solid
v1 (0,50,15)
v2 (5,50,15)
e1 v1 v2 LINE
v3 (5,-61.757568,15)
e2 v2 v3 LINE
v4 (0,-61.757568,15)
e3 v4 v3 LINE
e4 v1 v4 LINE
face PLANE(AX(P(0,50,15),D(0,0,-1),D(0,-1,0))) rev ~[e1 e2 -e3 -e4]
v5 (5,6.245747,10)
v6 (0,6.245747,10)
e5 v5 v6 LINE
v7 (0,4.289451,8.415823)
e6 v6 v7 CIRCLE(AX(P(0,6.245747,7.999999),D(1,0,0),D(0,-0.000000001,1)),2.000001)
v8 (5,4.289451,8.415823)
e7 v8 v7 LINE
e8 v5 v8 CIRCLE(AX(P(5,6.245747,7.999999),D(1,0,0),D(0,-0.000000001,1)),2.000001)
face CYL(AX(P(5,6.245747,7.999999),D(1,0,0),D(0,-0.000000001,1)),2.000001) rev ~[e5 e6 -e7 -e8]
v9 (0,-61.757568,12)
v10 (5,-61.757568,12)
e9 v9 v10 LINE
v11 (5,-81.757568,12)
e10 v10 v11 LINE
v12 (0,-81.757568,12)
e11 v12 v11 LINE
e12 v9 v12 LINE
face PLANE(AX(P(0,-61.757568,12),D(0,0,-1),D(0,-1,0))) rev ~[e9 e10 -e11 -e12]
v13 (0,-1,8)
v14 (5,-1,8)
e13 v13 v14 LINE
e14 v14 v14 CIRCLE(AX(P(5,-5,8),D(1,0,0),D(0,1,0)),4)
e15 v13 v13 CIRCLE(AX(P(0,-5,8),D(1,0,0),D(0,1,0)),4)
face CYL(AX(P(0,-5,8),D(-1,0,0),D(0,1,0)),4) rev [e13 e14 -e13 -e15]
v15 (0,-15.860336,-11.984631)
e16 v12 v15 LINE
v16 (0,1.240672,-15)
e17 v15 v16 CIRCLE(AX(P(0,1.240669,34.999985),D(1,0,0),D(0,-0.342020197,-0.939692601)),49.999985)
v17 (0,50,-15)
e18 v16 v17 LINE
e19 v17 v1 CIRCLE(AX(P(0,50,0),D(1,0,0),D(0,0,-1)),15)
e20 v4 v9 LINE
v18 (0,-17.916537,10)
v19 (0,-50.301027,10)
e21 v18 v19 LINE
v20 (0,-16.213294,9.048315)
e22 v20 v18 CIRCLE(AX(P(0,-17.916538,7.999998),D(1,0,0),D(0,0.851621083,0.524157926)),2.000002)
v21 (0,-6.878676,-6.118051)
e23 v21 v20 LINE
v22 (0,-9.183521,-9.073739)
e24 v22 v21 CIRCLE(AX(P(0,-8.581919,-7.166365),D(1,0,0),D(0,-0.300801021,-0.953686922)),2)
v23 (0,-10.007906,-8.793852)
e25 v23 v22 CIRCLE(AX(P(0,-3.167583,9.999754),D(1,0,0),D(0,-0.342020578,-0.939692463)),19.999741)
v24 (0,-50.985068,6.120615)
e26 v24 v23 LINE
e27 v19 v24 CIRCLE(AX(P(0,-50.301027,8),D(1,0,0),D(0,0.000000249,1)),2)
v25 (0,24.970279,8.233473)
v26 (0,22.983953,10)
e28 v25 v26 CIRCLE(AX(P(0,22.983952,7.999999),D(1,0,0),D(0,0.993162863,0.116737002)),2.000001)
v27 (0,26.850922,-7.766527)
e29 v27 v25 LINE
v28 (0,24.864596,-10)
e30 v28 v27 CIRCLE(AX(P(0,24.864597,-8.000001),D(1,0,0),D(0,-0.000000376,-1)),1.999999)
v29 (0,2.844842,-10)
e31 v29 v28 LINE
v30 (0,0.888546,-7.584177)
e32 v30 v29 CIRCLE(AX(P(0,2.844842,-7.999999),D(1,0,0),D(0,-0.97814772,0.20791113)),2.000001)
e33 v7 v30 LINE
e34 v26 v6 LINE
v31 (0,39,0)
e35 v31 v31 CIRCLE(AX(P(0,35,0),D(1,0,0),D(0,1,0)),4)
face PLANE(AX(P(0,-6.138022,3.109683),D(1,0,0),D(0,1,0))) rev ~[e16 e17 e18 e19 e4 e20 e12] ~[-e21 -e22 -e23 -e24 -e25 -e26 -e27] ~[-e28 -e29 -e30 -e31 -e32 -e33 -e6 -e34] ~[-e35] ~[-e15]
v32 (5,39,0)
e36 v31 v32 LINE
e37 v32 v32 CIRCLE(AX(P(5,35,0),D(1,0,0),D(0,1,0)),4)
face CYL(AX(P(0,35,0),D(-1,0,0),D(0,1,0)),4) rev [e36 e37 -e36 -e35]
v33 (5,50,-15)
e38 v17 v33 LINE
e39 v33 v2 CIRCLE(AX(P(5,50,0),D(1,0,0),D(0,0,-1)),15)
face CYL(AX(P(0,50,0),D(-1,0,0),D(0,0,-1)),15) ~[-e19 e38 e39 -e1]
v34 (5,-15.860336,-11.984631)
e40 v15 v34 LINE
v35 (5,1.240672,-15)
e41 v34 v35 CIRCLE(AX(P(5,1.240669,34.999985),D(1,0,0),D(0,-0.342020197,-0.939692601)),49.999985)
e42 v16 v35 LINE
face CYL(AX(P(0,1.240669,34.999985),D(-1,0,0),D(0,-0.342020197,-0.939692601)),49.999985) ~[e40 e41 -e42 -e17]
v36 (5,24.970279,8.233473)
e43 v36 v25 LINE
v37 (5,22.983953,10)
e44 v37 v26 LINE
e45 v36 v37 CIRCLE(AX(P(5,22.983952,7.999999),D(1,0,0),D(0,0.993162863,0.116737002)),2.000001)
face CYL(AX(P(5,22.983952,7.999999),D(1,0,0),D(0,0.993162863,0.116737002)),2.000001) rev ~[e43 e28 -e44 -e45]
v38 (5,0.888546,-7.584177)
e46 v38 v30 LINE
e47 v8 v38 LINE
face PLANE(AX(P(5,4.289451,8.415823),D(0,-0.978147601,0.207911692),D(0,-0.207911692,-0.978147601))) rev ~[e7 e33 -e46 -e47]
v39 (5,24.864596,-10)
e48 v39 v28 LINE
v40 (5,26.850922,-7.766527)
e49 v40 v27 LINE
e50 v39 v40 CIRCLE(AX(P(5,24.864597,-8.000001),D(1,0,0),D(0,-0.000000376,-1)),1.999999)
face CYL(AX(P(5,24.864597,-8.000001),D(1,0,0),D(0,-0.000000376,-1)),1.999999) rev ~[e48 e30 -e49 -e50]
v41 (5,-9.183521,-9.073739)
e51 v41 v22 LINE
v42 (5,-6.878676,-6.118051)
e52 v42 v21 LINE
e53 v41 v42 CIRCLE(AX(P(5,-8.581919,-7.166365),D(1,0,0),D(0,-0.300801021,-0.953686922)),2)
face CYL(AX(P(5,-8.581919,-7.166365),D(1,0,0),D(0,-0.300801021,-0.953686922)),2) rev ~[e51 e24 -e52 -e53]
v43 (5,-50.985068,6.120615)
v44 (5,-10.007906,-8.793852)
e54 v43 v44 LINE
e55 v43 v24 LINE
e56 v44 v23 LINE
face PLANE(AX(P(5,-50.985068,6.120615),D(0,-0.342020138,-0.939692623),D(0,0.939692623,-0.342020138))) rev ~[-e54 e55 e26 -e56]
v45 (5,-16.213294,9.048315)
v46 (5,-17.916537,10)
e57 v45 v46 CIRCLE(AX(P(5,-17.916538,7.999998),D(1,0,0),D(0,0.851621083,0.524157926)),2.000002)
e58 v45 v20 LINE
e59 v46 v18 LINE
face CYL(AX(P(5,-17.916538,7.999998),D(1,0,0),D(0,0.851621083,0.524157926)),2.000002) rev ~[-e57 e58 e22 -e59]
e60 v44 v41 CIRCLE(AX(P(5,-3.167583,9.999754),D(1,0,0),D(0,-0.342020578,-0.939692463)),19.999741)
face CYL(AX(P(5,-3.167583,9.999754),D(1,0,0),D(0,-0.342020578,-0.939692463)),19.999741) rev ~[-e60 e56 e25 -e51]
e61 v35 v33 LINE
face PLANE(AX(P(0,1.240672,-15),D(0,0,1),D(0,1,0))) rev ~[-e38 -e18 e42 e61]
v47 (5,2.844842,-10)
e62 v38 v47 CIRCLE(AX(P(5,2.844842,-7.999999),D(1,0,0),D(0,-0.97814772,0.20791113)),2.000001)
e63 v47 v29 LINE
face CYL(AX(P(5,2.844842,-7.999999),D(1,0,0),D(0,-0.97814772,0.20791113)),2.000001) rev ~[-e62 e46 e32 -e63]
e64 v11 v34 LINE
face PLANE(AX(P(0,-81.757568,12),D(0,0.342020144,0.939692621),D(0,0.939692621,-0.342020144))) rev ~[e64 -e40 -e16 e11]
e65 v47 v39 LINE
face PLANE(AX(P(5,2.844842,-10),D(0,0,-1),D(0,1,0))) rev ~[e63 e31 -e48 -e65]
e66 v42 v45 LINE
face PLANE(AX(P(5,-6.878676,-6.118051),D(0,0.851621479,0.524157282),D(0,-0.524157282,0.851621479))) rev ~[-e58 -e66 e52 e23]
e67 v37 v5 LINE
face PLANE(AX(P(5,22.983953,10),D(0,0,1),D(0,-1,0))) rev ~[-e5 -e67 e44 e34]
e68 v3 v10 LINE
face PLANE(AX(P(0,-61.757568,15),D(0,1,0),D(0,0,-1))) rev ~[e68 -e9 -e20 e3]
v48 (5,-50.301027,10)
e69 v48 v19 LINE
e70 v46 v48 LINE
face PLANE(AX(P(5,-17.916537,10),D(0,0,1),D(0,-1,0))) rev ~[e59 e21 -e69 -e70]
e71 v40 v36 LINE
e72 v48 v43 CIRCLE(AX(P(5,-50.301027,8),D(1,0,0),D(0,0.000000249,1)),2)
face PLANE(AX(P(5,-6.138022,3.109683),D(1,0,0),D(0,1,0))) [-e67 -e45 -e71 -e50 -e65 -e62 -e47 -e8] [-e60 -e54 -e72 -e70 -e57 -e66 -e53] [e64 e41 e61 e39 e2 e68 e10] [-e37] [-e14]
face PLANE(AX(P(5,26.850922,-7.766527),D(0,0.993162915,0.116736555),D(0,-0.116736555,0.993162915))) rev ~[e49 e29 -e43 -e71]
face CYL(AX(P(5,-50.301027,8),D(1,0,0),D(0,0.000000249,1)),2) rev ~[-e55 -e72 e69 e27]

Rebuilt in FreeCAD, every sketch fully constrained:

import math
import FreeCAD as App
import Part
import Sketcher
from FreeCAD import Vector
Q = App.Units.Quantity

doc = App.newDocument("Part")
body = doc.addObject("PartDesign::Body", "Body")

# Sketch on YZ plane
sketch1 = body.newObject("Sketcher::SketchObject", "Sketch")
sketch1.AttachmentSupport = (doc.getObject("YZ_Plane"), [""])
sketch1.MapMode = "FlatFace"
sketch1.addGeometry(Part.LineSegment(Vector(50, 15, 0), Vector(-61.8, 15, 0)), False)
sketch1.addGeometry(Part.LineSegment(Vector(-61.8, 15, 0), Vector(-61.8, 12, 0)), False)
sketch1.addGeometry(Part.LineSegment(Vector(-61.8, 12, 0), Vector(-81.8, 12, 0)), False)
sketch1.addGeometry(Part.LineSegment(Vector(-81.8, 12, 0), Vector(-15.9, -12, 0)), False)
sketch1.addGeometry(Part.ArcOfCircle(Part.Circle(Vector(1.2, 35, 0), Vector(0, 0, 1), 50), math.radians(-110), math.radians(-90)), False)
sketch1.addGeometry(Part.LineSegment(Vector(1.2, -15, 0), Vector(50, -15, 0)), False)
sketch1.addGeometry(Part.ArcOfCircle(Part.Circle(Vector(50, 0, 0), Vector(0, 0, 1), 15), math.radians(-90), math.radians(90)), False)
sketch1.addGeometry(Part.Circle(Vector(35, 0, 0), Vector(0, 0, 1), 4), False)
sketch1.addGeometry(Part.Circle(Vector(-5, 8, 0), Vector(0, 0, 1), 4), False)
sketch1.addConstraint(Sketcher.Constraint("Coincident", 0, 2, 1, 1))
sketch1.addConstraint(Sketcher.Constraint("Coincident", 1, 2, 2, 1))
sketch1.addConstraint(Sketcher.Constraint("Coincident", 2, 2, 3, 1))
sketch1.addConstraint(Sketcher.Constraint("Tangent", 3, 2, 4, 1))
sketch1.addConstraint(Sketcher.Constraint("Tangent", 4, 2, 5, 1))
sketch1.addConstraint(Sketcher.Constraint("Tangent", 5, 2, 6, 1))
sketch1.addConstraint(Sketcher.Constraint("Tangent", 6, 2, 0, 1))
sketch1.addConstraint(Sketcher.Constraint("Horizontal", 0))
sketch1.addConstraint(Sketcher.Constraint("Vertical", 1))
sketch1.addConstraint(Sketcher.Constraint("Horizontal", 2))
sketch1.addConstraint(Sketcher.Constraint("Horizontal", 5))
sketch1.addConstraint(Sketcher.Constraint("Equal", 7, 8))
sketch1.addConstraint(Sketcher.Constraint("PointOnObject", 6, 3, -1))
sketch1.addConstraint(Sketcher.Constraint("PointOnObject", 7, 3, -1))
sketch1.addConstraint(Sketcher.Constraint("Diameter", 7, Q("8 mm")))
sketch1.addConstraint(Sketcher.Constraint("Radius", 6, Q("15 mm")))
sketch1.addConstraint(Sketcher.Constraint("DistanceX", 2, 2, 2, 1, Q("20 mm")))
sketch1.addConstraint(Sketcher.Constraint("DistanceY", 1, 2, 1, 1, Q("3 mm")))
sketch1.addConstraint(Sketcher.Constraint("Angle", 3, Q("-20 deg")))
sketch1.addConstraint(Sketcher.Constraint("DistanceX", -1, 1, 6, 3, Q("50 mm")))
sketch1.addConstraint(Sketcher.Constraint("DistanceX", -1, 1, 7, 3, Q("35 mm")))
sketch1.addConstraint(Sketcher.Constraint("DistanceX", 8, 3, -1, 1, Q("5 mm")))
sketch1.addConstraint(Sketcher.Constraint("DistanceY", -1, 1, 8, 3, Q("8 mm")))
sketch1.addConstraint(Sketcher.Constraint("Radius", 4, Q("49.999985 mm")))
sketch1.addConstraint(Sketcher.Constraint("DistanceX", 0, 2, 0, 1, Q("111.757568 mm")))
pad1 = body.newObject("PartDesign::Pad", "Pad")
pad1.Profile = sketch1
pad1.Length = 5

# Sketch on YZ plane
sketch2 = body.newObject("Sketcher::SketchObject", "Sketch001")
sketch2.AttachmentSupport = (doc.getObject("YZ_Plane"), [""])
sketch2.MapMode = "FlatFace"
sketch2.AttachmentOffset = App.Placement(Vector(0, 0, 5), App.Rotation())
sketch2.addGeometry(Part.LineSegment(Vector(-17.9, 10, 0), Vector(-50.3, 10, 0)), False)
sketch2.addGeometry(Part.ArcOfCircle(Part.Circle(Vector(-50.3, 8, 0), Vector(0, 0, 1), 2), math.radians(90), math.radians(250)), False)
sketch2.addGeometry(Part.LineSegment(Vector(-51, 6.1, 0), Vector(-10, -8.8, 0)), False)
sketch2.addGeometry(Part.ArcOfCircle(Part.Circle(Vector(-3.2, 10, 0), Vector(0, 0, 1), 20), math.radians(-110), math.radians(-107.51)), False)
sketch2.addGeometry(Part.ArcOfCircle(Part.Circle(Vector(-8.6, -7.2, 0), Vector(0, 0, 1), 2), math.radians(-108), math.radians(32)), False)
sketch2.addGeometry(Part.LineSegment(Vector(-6.9, -6.1, 0), Vector(-16.2, 9, 0)), False)
sketch2.addGeometry(Part.ArcOfCircle(Part.Circle(Vector(-17.9, 8, 0), Vector(0, 0, 1), 2), math.radians(32), math.radians(90)), False)
sketch2.addGeometry(Part.LineSegment(Vector(23, 10, 0), Vector(6.2, 10, 0)), False)
sketch2.addGeometry(Part.ArcOfCircle(Part.Circle(Vector(6.2, 8, 0), Vector(0, 0, 1), 2), math.radians(90), math.radians(168)), False)
sketch2.addGeometry(Part.LineSegment(Vector(4.3, 8.4, 0), Vector(0.9, -7.6, 0)), False)
sketch2.addGeometry(Part.ArcOfCircle(Part.Circle(Vector(2.8, -8, 0), Vector(0, 0, 1), 2), math.radians(168), math.radians(270)), False)
sketch2.addGeometry(Part.LineSegment(Vector(2.8, -10, 0), Vector(24.9, -10, 0)), False)
sketch2.addGeometry(Part.ArcOfCircle(Part.Circle(Vector(24.9, -8, 0), Vector(0, 0, 1), 2), math.radians(-90), math.radians(7)), False)
sketch2.addGeometry(Part.LineSegment(Vector(26.9, -7.8, 0), Vector(25, 8.2, 0)), False)
sketch2.addGeometry(Part.ArcOfCircle(Part.Circle(Vector(23, 8, 0), Vector(0, 0, 1), 2), math.radians(7), math.radians(90)), False)
sketch2.addConstraint(Sketcher.Constraint("Tangent", 0, 2, 1, 1))
sketch2.addConstraint(Sketcher.Constraint("Tangent", 1, 2, 2, 1))
sketch2.addConstraint(Sketcher.Constraint("Tangent", 2, 2, 3, 1))
sketch2.addConstraint(Sketcher.Constraint("Tangent", 3, 2, 4, 1))
sketch2.addConstraint(Sketcher.Constraint("Tangent", 4, 2, 5, 1))
sketch2.addConstraint(Sketcher.Constraint("Tangent", 5, 2, 6, 1))
sketch2.addConstraint(Sketcher.Constraint("Tangent", 6, 2, 0, 1))
sketch2.addConstraint(Sketcher.Constraint("Tangent", 7, 2, 8, 1))
sketch2.addConstraint(Sketcher.Constraint("Tangent", 8, 2, 9, 1))
sketch2.addConstraint(Sketcher.Constraint("Tangent", 9, 2, 10, 1))
sketch2.addConstraint(Sketcher.Constraint("Tangent", 10, 2, 11, 1))
sketch2.addConstraint(Sketcher.Constraint("Tangent", 11, 2, 12, 1))
sketch2.addConstraint(Sketcher.Constraint("Tangent", 12, 2, 13, 1))
sketch2.addConstraint(Sketcher.Constraint("Tangent", 13, 2, 14, 1))
sketch2.addConstraint(Sketcher.Constraint("Tangent", 14, 2, 7, 1))
sketch2.addConstraint(Sketcher.Constraint("Horizontal", 0))
sketch2.addConstraint(Sketcher.Constraint("Horizontal", 7))
sketch2.addConstraint(Sketcher.Constraint("Horizontal", 11))
sketch2.addConstraint(Sketcher.Constraint("Equal", 1, 4))
sketch2.addConstraint(Sketcher.Constraint("Equal", 4, 6))
sketch2.addConstraint(Sketcher.Constraint("Equal", 6, 8))
sketch2.addConstraint(Sketcher.Constraint("Equal", 8, 10))
sketch2.addConstraint(Sketcher.Constraint("Equal", 10, 12))
sketch2.addConstraint(Sketcher.Constraint("Equal", 12, 14))
sketch2.addConstraint(Sketcher.Constraint("Horizontal", 6, 3, 8, 3))
sketch2.addConstraint(Sketcher.Constraint("Radius", 1, Q("2 mm")))
sketch2.addConstraint(Sketcher.Constraint("Angle", 2, Q("-20 deg")))
sketch2.addConstraint(Sketcher.Constraint("Angle", 9, Q("-102 deg")))
sketch2.addConstraint(Sketcher.Constraint("DistanceY", -1, 1, 1, 3, Q("8 mm")))
sketch2.addConstraint(Sketcher.Constraint("DistanceY", 10, 3, -1, 1, Q("7.999999 mm")))
sketch2.addConstraint(Sketcher.Constraint("Radius", 3, Q("19.999741 mm")))
sketch2.addConstraint(Sketcher.Constraint("DistanceX", 0, 2, 0, 1, Q("32.38449 mm")))
sketch2.addConstraint(Sketcher.Constraint("DistanceY", 2, 2, 4, 2, Q("2.675801 mm")))
sketch2.addConstraint(Sketcher.Constraint("Distance", 5, Q("17.808811 mm")))
sketch2.addConstraint(Sketcher.Constraint("DistanceX", 7, 2, 7, 1, Q("16.738206 mm")))
sketch2.addConstraint(Sketcher.Constraint("DistanceX", 11, 1, 11, 2, Q("22.019754 mm")))
sketch2.addConstraint(Sketcher.Constraint("DistanceX", 4, 3, -1, 1, Q("8.581919 mm")))
sketch2.addConstraint(Sketcher.Constraint("DistanceX", -1, 1, 8, 2, Q("4.289451 mm")))
pocket1 = body.newObject("PartDesign::Pocket", "Pocket")
pocket1.Profile = sketch2
pocket1.Length = 25

doc.recompute()
